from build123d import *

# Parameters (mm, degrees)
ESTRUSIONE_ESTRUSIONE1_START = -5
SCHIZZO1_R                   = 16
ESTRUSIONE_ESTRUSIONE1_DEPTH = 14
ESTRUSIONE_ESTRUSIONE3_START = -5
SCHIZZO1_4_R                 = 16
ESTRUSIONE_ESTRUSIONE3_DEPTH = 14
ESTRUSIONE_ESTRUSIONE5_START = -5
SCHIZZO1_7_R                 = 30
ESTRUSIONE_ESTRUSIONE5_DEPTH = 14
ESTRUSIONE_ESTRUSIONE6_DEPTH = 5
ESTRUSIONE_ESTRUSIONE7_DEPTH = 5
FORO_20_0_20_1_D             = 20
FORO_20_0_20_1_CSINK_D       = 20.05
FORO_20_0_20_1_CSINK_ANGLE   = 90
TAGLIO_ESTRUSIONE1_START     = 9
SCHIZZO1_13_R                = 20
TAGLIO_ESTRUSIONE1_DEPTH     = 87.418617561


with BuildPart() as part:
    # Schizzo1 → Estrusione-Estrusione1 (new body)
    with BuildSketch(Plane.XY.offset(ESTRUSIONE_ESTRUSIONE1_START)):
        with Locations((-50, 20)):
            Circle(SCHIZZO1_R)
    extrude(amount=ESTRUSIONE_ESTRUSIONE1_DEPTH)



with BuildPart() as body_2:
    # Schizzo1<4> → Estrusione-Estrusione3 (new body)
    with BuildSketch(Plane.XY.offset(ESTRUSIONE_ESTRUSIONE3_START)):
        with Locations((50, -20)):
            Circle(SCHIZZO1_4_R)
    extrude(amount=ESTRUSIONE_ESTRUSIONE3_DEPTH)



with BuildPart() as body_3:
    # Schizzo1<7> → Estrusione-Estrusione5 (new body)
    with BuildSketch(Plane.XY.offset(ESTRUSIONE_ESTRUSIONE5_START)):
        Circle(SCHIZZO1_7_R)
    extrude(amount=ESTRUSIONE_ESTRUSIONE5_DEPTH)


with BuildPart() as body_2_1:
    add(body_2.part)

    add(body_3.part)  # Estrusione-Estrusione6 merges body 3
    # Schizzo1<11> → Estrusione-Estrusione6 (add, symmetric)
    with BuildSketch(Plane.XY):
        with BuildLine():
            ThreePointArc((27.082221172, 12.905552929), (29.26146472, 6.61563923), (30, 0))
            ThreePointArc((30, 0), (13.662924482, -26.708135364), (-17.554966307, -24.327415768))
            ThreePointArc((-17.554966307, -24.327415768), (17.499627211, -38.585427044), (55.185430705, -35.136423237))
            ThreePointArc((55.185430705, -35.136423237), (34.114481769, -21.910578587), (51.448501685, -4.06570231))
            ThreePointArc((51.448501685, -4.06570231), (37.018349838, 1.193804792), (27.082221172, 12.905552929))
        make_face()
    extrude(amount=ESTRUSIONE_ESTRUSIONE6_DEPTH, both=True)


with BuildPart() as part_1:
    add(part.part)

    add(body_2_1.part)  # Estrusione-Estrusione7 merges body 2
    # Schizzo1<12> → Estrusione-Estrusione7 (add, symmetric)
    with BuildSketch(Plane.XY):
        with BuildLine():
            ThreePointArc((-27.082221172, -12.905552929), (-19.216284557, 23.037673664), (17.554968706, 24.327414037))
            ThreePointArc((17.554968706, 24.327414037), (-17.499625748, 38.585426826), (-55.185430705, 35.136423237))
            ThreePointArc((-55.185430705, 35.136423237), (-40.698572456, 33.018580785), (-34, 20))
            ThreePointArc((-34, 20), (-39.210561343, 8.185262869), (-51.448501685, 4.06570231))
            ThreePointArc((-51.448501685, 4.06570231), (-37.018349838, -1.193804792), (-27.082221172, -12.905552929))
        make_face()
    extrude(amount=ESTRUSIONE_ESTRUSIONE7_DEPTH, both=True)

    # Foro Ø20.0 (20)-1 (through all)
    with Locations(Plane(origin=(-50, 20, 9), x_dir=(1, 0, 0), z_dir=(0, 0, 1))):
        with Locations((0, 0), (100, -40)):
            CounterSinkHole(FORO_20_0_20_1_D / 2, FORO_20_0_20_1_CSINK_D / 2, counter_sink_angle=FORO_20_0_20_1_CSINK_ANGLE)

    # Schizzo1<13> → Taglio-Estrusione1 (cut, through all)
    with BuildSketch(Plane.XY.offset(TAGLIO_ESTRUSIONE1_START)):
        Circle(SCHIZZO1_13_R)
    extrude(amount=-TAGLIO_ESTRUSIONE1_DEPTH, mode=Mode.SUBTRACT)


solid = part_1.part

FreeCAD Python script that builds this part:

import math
import FreeCAD as App
import Part
import Sketcher
from FreeCAD import Vector
Q = App.Units.Quantity

doc = App.newDocument("Part")
body = doc.addObject("PartDesign::Body", "Body")

# Sketch on XY plane
sketch1 = doc.addObject("Sketcher::SketchObject", "Sketch")
body.addObject(sketch1)
sketch1.AttachmentSupport = (doc.XY_Plane, [""])
sketch1.MapMode = "FlatFace"
sketch1.AttachmentOffset = App.Placement(Vector(0, 0, -5), App.Rotation())
sketch1.addGeometry(Part.Circle(Vector(-50, 20, 0), Vector(0, 0, 1), 16), False)
sketch1.addConstraint(Sketcher.Constraint("Diameter", 0, Q("32 mm")))
sketch1.addConstraint(Sketcher.Constraint("DistanceX", 0, 3, -1, 1, Q("50 mm")))
sketch1.addConstraint(Sketcher.Constraint("DistanceY", -1, 1, 0, 3, Q("20 mm")))
pad1 = doc.addObject("PartDesign::Pad", "Pad")
body.addObject(pad1)
pad1.Profile = sketch1
pad1.Length = 14
body2 = doc.addObject("PartDesign::Body", "Body001")

# Sketch on XY plane
sketch2 = doc.addObject("Sketcher::SketchObject", "Sketch001")
body2.addObject(sketch2)
sketch2.AttachmentSupport = (doc.getObject("XY_Plane001"), [""])
sketch2.MapMode = "FlatFace"
sketch2.AttachmentOffset = App.Placement(Vector(0, 0, -5), App.Rotation())
sketch2.addGeometry(Part.Circle(Vector(50, -20, 0), Vector(0, 0, 1), 16), False)
sketch2.addConstraint(Sketcher.Constraint("Diameter", 0, Q("32 mm")))
sketch2.addConstraint(Sketcher.Constraint("DistanceX", -1, 1, 0, 3, Q("50 mm")))
sketch2.addConstraint(Sketcher.Constraint("DistanceY", 0, 3, -1, 1, Q("20 mm")))
pad2 = doc.addObject("PartDesign::Pad", "Pad001")
body2.addObject(pad2)
pad2.Profile = sketch2
pad2.Length = 14
body3 = doc.addObject("PartDesign::Body", "Body002")

# Sketch on XY plane
sketch3 = doc.addObject("Sketcher::SketchObject", "Sketch002")
body3.addObject(sketch3)
sketch3.AttachmentSupport = (doc.getObject("XY_Plane002"), [""])
sketch3.MapMode = "FlatFace"
sketch3.AttachmentOffset = App.Placement(Vector(0, 0, -5), App.Rotation())
sketch3.addGeometry(Part.Circle(Vector(0, 0, 0), Vector(0, 0, 1), 30), False)
sketch3.addConstraint(Sketcher.Constraint("Coincident", 0, 3, -1, 1))
sketch3.addConstraint(Sketcher.Constraint("Diameter", 0, Q("60 mm")))
pad3 = doc.addObject("PartDesign::Pad", "Pad002")
body3.addObject(pad3)
pad3.Profile = sketch3
pad3.Length = 14
body2.AllowCompound = True
doc.recompute()

boolean = doc.addObject("PartDesign::Boolean", "Boolean")
body2.addObject(boolean)
boolean.Type = "Fuse"
boolean.addObjects([body3])

# Sketch on XY plane
sketch4 = doc.addObject("Sketcher::SketchObject", "Sketch003")
body2.addObject(sketch4)
sketch4.AttachmentSupport = (doc.getObject("XY_Plane001"), [""])
sketch4.MapMode = "FlatFace"
sketch4.addGeometry(Part.ArcOfCircle(Part.Circle(Vector(0, 0, 0), Vector(0, 0, 1), 30), math.radians(0), math.radians(25)), False)
sketch4.addGeometry(Part.ArcOfCircle(Part.Circle(Vector(0, 0, 0), Vector(0, 0, 1), 30), math.radians(-126), math.radians(0)), False)
sketch4.addGeometry(Part.ArcOfCircle(Part.Circle(Vector(29, 41, 0), Vector(0, 0, 1), 80), math.radians(-126), math.radians(-71)), False)
sketch4.addGeometry(Part.ArcOfCircle(Part.Circle(Vector(50, -20, 0), Vector(0, 0, 1), 16), math.radians(85), math.radians(289)), False)
sketch4.addGeometry(Part.ArcOfCircle(Part.Circle(Vector(54, 26, 0), Vector(0, 0, 1), 30), math.radians(-155), math.radians(-95)), False)
sketch4.addConstraint(Sketcher.Constraint("Tangent", 0, 1, 1, 2))
sketch4.addConstraint(Sketcher.Constraint("Tangent", 1, 1, 2, 1))
sketch4.addConstraint(Sketcher.Constraint("Tangent", 2, 2, 3, 2))
sketch4.addConstraint(Sketcher.Constraint("Tangent", 3, 1, 4, 2))
sketch4.addConstraint(Sketcher.Constraint("Tangent", 4, 1, 0, 2))
sketch4.addConstraint(Sketcher.Constraint("Coincident", 0, 3, -1, 1))
sketch4.addConstraint(Sketcher.Constraint("Equal", 0, 1))
sketch4.addConstraint(Sketcher.Constraint("Equal", 1, 4))
sketch4.addConstraint(Sketcher.Constraint("PointOnObject", 0, 1, -1))
sketch4.addConstraint(Sketcher.Constraint("Radius", 0, Q("30 mm")))
sketch4.addConstraint(Sketcher.Constraint("Radius", 2, Q("80 mm")))
sketch4.addConstraint(Sketcher.Constraint("Radius", 3, Q("16 mm")))
sketch4.addConstraint(Sketcher.Constraint("DistanceX", -1, 1, 3, 3, Q("50 mm")))
sketch4.addConstraint(Sketcher.Constraint("DistanceY", 3, 3, -1, 1, Q("20 mm")))
pad4 = doc.addObject("PartDesign::Pad", "Pad003")
body2.addObject(pad4)
pad4.Profile = sketch4
pad4.Length = 10
pad4.Midplane = True
body.AllowCompound = True
doc.recompute()

boolean2 = doc.addObject("PartDesign::Boolean", "Boolean001")
body.addObject(boolean2)
boolean2.Type = "Fuse"
boolean2.addObjects([body2])

# Sketch on XY plane
sketch5 = doc.addObject("Sketcher::SketchObject", "Sketch004")
body.addObject(sketch5)
sketch5.AttachmentSupport = (doc.XY_Plane, [""])
sketch5.MapMode = "FlatFace"
sketch5.addGeometry(Part.ArcOfCircle(Part.Circle(Vector(0, 0, 0), Vector(0, 0, 1), 30), math.radians(54), math.radians(205)), False)
sketch5.addGeometry(Part.ArcOfCircle(Part.Circle(Vector(-29, -41, 0), Vector(0, 0, 1), 80), math.radians(54), math.radians(109)), False)
sketch5.addGeometry(Part.ArcOfCircle(Part.Circle(Vector(-50, 20, 0), Vector(0, 0, 1), 16), math.radians(0), math.radians(109)), False)
sketch5.addGeometry(Part.ArcOfCircle(Part.Circle(Vector(-50, 20, 0), Vector(0, 0, 1), 16), math.radians(-95), math.radians(0)), False)
sketch5.addGeometry(Part.ArcOfCircle(Part.Circle(Vector(-54, -26, 0), Vector(0, 0, 1), 30), math.radians(25), math.radians(85)), False)
sketch5.addConstraint(Sketcher.Constraint("Tangent", 0, 1, 1, 1))
sketch5.addConstraint(Sketcher.Constraint("Tangent", 1, 2, 2, 2))
sketch5.addConstraint(Sketcher.Constraint("Tangent", 2, 1, 3, 2))
sketch5.addConstraint(Sketcher.Constraint("Tangent", 3, 1, 4, 2))
sketch5.addConstraint(Sketcher.Constraint("Tangent", 4, 1, 0, 2))
sketch5.addConstraint(Sketcher.Constraint("Coincident", 0, 3, -1, 1))
sketch5.addConstraint(Sketcher.Constraint("Equal", 2, 3))
sketch5.addConstraint(Sketcher.Constraint("Equal", 0, 4))
sketch5.addConstraint(Sketcher.Constraint("Horizontal", 3, 3, 2, 1))
sketch5.addConstraint(Sketcher.Constraint("Radius", 0, Q("30 mm")))
sketch5.addConstraint(Sketcher.Constraint("Radius", 1, Q("80 mm")))
sketch5.addConstraint(Sketcher.Constraint("Radius", 2, Q("16 mm")))
sketch5.addConstraint(Sketcher.Constraint("DistanceX", 2, 3, -1, 1, Q("50 mm")))
sketch5.addConstraint(Sketcher.Constraint("DistanceY", -1, 1, 2, 3, Q("20 mm")))
pad5 = doc.addObject("PartDesign::Pad", "Pad004")
body.addObject(pad5)
pad5.Profile = sketch5
pad5.Length = 10
pad5.Midplane = True

# Sketch on XY plane
sketch6 = doc.addObject("Sketcher::SketchObject", "Sketch005")
body.addObject(sketch6)
sketch6.AttachmentSupport = (doc.XY_Plane, [""])
sketch6.MapMode = "FlatFace"
sketch6.AttachmentOffset = App.Placement(Vector(0, 0, 9), App.Rotation())
sketch6.addGeometry(Part.Circle(Vector(-50, 20, 0), Vector(0, 0, 1), 10), False)
sketch6.addGeometry(Part.Circle(Vector(50, -20, 0), Vector(0, 0, 1), 10), False)
sketch6.addConstraint(Sketcher.Constraint("Equal", 0, 1))
sketch6.addConstraint(Sketcher.Constraint("Symmetric", 0, 3, 1, 3, -1, 1))
sketch6.addConstraint(Sketcher.Constraint("Diameter", 0, Q("20 mm")))
sketch6.addConstraint(Sketcher.Constraint("DistanceX", 0, 3, -1, 1, Q("50 mm")))
sketch6.addConstraint(Sketcher.Constraint("DistanceY", -1, 1, 0, 3, Q("20 mm")))
doc.recompute()
hole = doc.addObject("PartDesign::Hole", "Hole")
body.addObject(hole)
hole.Profile = sketch6
hole.ThreadType = "None"
hole.Diameter = 20
hole.DepthType = "ThroughAll"
hole.HoleCutType = "Countersink"
hole.HoleCutDiameter = 20.05
hole.HoleCutCountersinkAngle = 90

# Sketch on XY plane
sketch7 = doc.addObject("Sketcher::SketchObject", "Sketch006")
body.addObject(sketch7)
sketch7.AttachmentSupport = (doc.XY_Plane, [""])
sketch7.MapMode = "FlatFace"
sketch7.AttachmentOffset = App.Placement(Vector(0, 0, 9), App.Rotation())
sketch7.addGeometry(Part.Circle(Vector(0, 0, 0), Vector(0, 0, 1), 20), False)
sketch7.addConstraint(Sketcher.Constraint("Coincident", 0, 3, -1, 1))
sketch7.addConstraint(Sketcher.Constraint("Diameter", 0, Q("40 mm")))
pocket1 = doc.addObject("PartDesign::Pocket", "Pocket")
body.addObject(pocket1)
pocket1.Profile = sketch7
pocket1.Type = "ThroughAll"

doc.recompute()
